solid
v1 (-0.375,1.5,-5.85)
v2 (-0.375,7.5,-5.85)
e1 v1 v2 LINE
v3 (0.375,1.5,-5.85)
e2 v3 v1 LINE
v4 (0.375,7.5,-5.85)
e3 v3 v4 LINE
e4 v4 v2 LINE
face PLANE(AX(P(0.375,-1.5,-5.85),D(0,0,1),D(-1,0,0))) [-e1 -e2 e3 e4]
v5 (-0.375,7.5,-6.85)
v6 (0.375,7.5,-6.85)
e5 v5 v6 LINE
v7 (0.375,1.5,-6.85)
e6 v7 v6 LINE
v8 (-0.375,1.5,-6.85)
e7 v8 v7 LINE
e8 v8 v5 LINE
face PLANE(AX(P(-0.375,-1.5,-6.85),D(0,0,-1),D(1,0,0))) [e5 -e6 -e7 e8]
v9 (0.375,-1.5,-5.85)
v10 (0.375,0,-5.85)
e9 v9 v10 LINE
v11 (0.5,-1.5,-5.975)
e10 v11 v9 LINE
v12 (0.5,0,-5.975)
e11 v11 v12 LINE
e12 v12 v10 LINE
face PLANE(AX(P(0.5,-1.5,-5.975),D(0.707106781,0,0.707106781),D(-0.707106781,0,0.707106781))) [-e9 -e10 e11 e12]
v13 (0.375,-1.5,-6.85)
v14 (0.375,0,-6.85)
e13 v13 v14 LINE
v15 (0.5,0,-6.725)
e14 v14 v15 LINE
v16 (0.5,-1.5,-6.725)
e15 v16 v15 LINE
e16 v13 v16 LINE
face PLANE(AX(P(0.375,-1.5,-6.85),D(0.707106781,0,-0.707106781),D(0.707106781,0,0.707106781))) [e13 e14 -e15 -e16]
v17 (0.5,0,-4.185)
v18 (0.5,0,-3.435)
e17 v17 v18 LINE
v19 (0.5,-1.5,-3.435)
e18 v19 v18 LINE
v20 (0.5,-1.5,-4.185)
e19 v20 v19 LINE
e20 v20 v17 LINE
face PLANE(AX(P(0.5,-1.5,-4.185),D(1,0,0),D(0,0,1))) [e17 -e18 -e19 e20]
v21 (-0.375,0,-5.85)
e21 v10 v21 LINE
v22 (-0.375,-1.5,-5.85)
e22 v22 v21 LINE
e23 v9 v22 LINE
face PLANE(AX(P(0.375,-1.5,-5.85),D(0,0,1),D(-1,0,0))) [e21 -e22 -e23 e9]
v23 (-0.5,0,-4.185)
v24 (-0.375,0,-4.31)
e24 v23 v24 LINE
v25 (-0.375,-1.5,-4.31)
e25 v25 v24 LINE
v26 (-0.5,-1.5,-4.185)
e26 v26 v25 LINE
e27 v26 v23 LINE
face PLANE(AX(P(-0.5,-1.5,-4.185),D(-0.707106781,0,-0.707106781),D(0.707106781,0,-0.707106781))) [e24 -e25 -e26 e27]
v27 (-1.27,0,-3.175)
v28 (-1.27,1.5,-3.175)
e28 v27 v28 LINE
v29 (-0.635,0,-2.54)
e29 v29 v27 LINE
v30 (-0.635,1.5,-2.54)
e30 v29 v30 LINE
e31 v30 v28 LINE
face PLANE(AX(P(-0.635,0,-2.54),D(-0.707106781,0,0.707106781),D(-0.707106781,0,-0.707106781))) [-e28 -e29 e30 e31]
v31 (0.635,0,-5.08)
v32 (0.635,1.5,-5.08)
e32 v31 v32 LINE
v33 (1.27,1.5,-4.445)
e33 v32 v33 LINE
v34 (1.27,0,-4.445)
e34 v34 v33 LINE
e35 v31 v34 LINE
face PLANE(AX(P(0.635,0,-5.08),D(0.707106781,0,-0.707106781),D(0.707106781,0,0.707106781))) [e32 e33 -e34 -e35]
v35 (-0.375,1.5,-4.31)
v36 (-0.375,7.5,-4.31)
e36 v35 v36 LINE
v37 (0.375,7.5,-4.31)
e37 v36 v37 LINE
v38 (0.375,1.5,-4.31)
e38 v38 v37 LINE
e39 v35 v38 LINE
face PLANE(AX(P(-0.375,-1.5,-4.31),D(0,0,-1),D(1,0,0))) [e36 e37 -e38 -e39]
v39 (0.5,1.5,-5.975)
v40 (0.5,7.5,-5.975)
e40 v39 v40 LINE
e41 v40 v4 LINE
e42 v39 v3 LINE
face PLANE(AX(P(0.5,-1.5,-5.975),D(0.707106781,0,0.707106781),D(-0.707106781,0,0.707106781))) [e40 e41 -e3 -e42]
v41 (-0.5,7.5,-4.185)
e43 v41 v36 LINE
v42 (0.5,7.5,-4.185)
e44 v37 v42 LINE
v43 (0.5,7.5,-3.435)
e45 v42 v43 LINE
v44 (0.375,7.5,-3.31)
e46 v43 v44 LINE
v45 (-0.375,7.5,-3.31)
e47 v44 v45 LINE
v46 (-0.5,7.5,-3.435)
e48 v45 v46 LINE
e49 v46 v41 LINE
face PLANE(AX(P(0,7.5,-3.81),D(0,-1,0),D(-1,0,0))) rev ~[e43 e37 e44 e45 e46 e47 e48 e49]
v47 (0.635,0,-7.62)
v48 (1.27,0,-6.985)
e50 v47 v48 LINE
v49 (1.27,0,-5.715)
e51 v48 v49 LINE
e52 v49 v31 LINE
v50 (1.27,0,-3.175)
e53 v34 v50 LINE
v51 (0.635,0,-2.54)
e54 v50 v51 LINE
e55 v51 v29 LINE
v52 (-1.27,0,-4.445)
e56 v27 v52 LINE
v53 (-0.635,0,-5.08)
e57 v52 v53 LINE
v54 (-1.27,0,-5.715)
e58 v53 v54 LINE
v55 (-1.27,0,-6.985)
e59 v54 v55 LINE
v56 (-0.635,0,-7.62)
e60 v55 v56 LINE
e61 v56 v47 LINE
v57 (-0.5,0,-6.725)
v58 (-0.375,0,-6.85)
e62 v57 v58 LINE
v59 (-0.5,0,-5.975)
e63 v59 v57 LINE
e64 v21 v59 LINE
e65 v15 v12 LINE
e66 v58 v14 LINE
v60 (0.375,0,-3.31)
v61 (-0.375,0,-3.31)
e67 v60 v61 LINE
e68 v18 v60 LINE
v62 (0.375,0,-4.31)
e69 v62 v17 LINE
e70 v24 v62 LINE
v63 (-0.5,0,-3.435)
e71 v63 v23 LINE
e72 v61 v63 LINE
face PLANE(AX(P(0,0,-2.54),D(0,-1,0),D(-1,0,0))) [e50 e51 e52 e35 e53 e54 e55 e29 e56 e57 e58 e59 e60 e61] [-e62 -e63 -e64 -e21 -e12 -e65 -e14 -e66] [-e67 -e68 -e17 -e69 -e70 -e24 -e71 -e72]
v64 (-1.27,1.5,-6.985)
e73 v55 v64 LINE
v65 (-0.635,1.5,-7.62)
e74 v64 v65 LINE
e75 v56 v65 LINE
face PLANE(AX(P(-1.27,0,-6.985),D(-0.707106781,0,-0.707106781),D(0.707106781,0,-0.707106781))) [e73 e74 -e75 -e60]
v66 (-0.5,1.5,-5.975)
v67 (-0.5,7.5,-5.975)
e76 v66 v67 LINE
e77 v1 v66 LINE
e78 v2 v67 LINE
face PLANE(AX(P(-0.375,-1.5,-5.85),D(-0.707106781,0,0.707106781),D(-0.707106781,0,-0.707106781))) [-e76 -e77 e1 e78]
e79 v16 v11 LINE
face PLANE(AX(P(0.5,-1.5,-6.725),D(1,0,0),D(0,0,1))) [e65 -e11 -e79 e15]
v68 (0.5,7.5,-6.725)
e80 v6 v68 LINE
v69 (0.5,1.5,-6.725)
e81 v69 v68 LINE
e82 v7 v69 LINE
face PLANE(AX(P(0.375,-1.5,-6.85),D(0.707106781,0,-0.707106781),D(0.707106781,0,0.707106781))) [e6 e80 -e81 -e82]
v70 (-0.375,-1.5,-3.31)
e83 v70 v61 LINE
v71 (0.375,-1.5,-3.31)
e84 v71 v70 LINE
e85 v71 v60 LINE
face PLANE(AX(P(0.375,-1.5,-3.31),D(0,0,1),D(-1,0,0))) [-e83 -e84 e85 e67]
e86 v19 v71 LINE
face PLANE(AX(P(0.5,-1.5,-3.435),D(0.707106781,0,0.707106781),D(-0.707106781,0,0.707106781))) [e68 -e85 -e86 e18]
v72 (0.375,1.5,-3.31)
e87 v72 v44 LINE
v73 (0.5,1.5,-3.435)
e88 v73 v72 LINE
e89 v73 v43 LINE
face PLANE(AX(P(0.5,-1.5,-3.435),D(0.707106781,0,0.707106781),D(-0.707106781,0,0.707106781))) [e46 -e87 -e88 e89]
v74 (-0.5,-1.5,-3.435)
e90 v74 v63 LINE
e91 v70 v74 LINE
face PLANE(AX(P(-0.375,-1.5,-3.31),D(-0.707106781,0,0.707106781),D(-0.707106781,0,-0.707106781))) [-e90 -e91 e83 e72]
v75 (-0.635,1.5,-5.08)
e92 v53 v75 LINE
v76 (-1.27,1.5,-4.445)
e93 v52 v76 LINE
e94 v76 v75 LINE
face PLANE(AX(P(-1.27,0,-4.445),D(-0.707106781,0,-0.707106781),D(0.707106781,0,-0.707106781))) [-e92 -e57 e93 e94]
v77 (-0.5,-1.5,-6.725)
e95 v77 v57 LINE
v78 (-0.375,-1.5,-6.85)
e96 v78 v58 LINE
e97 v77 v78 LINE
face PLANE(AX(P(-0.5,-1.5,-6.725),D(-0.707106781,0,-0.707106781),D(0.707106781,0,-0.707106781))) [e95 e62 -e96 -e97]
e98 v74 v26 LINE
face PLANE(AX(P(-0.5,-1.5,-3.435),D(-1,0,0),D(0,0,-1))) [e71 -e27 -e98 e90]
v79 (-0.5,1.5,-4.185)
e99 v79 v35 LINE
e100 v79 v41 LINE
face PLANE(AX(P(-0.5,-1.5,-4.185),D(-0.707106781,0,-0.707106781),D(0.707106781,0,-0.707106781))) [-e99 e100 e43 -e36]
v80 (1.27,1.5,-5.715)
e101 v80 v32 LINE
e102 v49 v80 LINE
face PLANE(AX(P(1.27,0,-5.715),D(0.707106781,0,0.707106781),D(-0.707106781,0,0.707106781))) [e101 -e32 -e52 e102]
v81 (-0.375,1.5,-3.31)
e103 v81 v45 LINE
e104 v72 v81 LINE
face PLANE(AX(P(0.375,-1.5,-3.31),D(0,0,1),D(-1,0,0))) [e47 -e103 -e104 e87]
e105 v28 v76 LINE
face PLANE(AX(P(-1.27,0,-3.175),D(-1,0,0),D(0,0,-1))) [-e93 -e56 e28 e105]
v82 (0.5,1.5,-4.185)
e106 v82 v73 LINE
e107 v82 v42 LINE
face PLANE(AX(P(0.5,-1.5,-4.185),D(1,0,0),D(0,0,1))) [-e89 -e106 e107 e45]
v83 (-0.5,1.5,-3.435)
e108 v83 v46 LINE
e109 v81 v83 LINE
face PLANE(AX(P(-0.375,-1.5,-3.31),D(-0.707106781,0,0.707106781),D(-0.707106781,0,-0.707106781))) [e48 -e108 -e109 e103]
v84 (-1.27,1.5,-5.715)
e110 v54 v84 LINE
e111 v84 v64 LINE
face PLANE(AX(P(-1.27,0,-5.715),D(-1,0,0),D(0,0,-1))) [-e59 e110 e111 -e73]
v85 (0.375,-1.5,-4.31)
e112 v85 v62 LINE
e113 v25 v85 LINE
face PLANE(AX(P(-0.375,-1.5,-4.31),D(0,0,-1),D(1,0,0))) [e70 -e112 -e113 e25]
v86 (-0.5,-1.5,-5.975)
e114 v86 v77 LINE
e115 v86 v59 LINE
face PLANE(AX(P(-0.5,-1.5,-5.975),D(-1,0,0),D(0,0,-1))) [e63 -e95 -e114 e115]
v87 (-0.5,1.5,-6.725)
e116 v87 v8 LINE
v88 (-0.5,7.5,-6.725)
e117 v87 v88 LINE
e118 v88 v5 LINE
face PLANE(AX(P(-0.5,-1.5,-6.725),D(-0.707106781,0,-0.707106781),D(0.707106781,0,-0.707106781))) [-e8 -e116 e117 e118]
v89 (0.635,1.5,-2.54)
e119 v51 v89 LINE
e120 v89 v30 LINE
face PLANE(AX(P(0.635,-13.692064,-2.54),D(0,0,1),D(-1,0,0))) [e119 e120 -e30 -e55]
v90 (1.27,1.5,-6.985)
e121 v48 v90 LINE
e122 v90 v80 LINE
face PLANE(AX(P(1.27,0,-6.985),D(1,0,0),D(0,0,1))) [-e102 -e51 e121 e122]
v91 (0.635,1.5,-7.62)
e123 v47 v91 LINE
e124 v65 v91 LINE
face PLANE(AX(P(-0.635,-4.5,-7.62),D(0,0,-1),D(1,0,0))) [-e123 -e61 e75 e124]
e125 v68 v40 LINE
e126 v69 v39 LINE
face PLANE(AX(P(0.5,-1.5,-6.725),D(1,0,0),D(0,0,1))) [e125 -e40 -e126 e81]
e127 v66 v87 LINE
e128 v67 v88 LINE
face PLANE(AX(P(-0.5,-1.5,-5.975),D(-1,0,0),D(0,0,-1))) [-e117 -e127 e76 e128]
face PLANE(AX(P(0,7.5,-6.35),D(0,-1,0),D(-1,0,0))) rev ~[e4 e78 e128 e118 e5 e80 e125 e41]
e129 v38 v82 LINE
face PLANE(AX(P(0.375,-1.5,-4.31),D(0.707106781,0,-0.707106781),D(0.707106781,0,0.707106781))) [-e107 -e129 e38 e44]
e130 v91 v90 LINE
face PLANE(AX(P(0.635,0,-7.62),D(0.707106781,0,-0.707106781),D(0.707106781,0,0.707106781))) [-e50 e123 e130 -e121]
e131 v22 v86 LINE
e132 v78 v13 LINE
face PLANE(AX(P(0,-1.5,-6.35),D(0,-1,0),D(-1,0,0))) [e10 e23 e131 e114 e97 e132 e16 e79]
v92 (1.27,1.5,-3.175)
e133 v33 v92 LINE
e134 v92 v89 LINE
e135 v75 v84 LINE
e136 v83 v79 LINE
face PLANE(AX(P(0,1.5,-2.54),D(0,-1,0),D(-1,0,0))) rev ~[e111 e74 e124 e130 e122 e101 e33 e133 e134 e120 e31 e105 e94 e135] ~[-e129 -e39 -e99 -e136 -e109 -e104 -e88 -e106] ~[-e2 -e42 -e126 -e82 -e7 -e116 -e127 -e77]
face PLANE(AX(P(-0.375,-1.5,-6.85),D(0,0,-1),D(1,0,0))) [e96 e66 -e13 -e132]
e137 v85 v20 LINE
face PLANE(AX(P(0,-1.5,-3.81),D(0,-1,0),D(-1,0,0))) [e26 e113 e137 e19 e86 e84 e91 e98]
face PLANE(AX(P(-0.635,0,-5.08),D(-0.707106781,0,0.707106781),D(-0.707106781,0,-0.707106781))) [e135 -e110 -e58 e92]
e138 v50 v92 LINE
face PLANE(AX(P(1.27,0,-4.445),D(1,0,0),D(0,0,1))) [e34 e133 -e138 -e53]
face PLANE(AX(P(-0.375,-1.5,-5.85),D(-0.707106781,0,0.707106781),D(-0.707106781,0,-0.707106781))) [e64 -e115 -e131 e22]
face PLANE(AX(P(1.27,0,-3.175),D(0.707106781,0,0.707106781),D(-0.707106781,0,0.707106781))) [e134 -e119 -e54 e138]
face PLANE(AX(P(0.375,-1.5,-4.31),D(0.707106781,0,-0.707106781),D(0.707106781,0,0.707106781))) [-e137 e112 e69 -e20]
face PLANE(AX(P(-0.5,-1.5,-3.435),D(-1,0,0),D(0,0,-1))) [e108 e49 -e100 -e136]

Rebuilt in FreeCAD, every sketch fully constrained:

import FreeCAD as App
import Part
import Sketcher
from FreeCAD import Vector
Q = App.Units.Quantity


def add_polygon(sketch, points):
    """Adds a closed chain of lines whose ends are joined by coincident constraints."""
    first, n = sketch.GeometryCount, len(points)
    for a, b in zip(points, points[1:] + points[:1]):
        sketch.addGeometry(Part.LineSegment(App.Vector(*a, 0), App.Vector(*b, 0)), False)
    for i in range(n):
        sketch.addConstraint(Sketcher.Constraint("Coincident", first + i, 2, first + (i + 1) % n, 1))

doc = App.newDocument("Part")
body = doc.addObject("PartDesign::Body", "Body")

sketch1 = doc.addObject("Sketcher::SketchObject", "Sketch")
body.addObject(sketch1)
sketch1.AttachmentSupport = (doc.XZ_Plane, [""])
sketch1.MapMode = "FlatFace"
add_polygon(sketch1, [(0.6, -10.2), (-0.6, -10.2), (-1.3, -9.5), (-1.3, -8.3), (-0.6, -7.6), (-1.3, -7), (-1.3, -5.7), (-0.6, -5.1), (-1.3, -4.4), (-1.3, -3.2), (-0.6, -2.5), (-1.3, -1.9), (-1.3, -0.6), (-0.6, 0), (-1.3, 0.6), (-1.3, 1.9), (-0.6, 2.5), (-1.3, 3.2), (-1.3, 4.4), (-0.6, 5.1), (0.6, 5.1), (1.3, 4.4), (1.3, 3.2), (0.6, 2.5), (1.3, 1.9), (1.3, 0.6), (0.6, 0), (1.3, -0.6), (1.3, -1.9), (0.6, -2.5), (1.3, -3.2), (1.3, -4.4), (0.6, -5.1), (1.3, -5.7), (1.3, -7), (0.6, -7.6), (1.3, -8.3), (1.3, -9.5)])
sketch1.addConstraint([
    Sketcher.Constraint("Horizontal", 0),
    Sketcher.Constraint("Vertical", 2),
    Sketcher.Constraint("Vertical", 5),
    Sketcher.Constraint("Vertical", 8),
    Sketcher.Constraint("Vertical", 11),
    Sketcher.Constraint("Vertical", 14),
    Sketcher.Constraint("Vertical", 17),
    Sketcher.Constraint("Horizontal", 19),
    Sketcher.Constraint("Vertical", 21),
    Sketcher.Constraint("Vertical", 24),
    Sketcher.Constraint("Vertical", 27),
    Sketcher.Constraint("Vertical", 30),
    Sketcher.Constraint("Vertical", 33),
    Sketcher.Constraint("Vertical", 36),
    Sketcher.Constraint("Symmetric", 6, 2, 19, 2, -1, 1),
    Sketcher.Constraint("Symmetric", 7, 2, 20, 2, -1, 1),
    Sketcher.Constraint("Symmetric", 9, 2, 22, 2, -1, 1),
    Sketcher.Constraint("Symmetric", 10, 2, 23, 2, -1, 1),
    Sketcher.Constraint("Symmetric", 12, 2, 25, 2, -1, 1),
    Sketcher.Constraint("Symmetric", 13, 2, 26, 2, -1, 1),
    Sketcher.Constraint("Symmetric", 15, 2, 28, 2, -1, 1),
    Sketcher.Constraint("Symmetric", 16, 2, 29, 2, -1, 1),
    Sketcher.Constraint("Symmetric", 18, 2, 31, 2, -1, 1),
    Sketcher.Constraint("Symmetric", 17, 2, 20, 2, -2),
    Sketcher.Constraint("Symmetric", 15, 2, 22, 2, -2),
    Sketcher.Constraint("Symmetric", 14, 2, 23, 2, -2),
    Sketcher.Constraint("Symmetric", 5, 2, 32, 2, -2),
    Sketcher.Constraint("Symmetric", 3, 2, 34, 2, -2),
    Sketcher.Constraint("Symmetric", 2, 2, 35, 2, -2),
    Sketcher.Constraint("PointOnObject", 12, 2, -1),
    Sketcher.Constraint("Perpendicular", 1, 3),
    Sketcher.Constraint("Perpendicular", 3, 4),
    Sketcher.Constraint("Perpendicular", 4, 6),
    Sketcher.Constraint("Perpendicular", 6, 7),
    Sketcher.Constraint("Perpendicular", 7, 9),
    Sketcher.Constraint("Perpendicular", 9, 10),
    Sketcher.Constraint("Perpendicular", 10, 12),
    Sketcher.Constraint("Perpendicular", 12, 13),
    Sketcher.Constraint("Perpendicular", 13, 15),
    Sketcher.Constraint("Perpendicular", 15, 16),
    Sketcher.Constraint("Perpendicular", 16, 18),
    Sketcher.Constraint("Perpendicular", 20, 22),
    Sketcher.Constraint("Perpendicular", 23, 25),
    Sketcher.Constraint("Perpendicular", 26, 28),
    Sketcher.Constraint("Perpendicular", 29, 31),
    Sketcher.Constraint("Perpendicular", 32, 34),
    Sketcher.Constraint("Perpendicular", 35, 37),
    Sketcher.Constraint("Horizontal", 1, 2, 36, 2),
    Sketcher.Constraint("Vertical", 0, 2, 3, 2),
    Sketcher.Constraint("Vertical", 2, 2, 4, 2),
    Sketcher.Constraint("Vertical", 3, 2, 6, 2),
    Sketcher.Constraint("Vertical", 5, 2, 7, 2),
    Sketcher.Constraint("Vertical", 6, 2, 9, 2),
    Sketcher.Constraint("Vertical", 8, 2, 10, 2),
    Sketcher.Constraint("Vertical", 9, 2, 12, 2),
    Sketcher.Constraint("Equal", 19, 2),
    Sketcher.Constraint("Equal", 2, 5),
    Sketcher.Constraint("Equal", 5, 8),
    Sketcher.Constraint("Equal", 8, 11),
    Sketcher.Constraint("DistanceX", 0, 2, 0, 1, Q("1.27 mm")),
    Sketcher.Constraint("DistanceY", 0, 2, -1, 1, Q("10.16 mm")),
])
pad1 = doc.addObject("PartDesign::Pad", "Pad")
body.addObject(pad1)
pad1.Profile = sketch1
pad1.Length = 1.5
pad1.Reversed = True

sketch2 = doc.addObject("Sketcher::SketchObject", "Sketch001")
body.addObject(sketch2)
sketch2.AttachmentSupport = (doc.XZ_Plane, [""])
sketch2.MapMode = "FlatFace"
sketch2.AttachmentOffset = App.Placement(Vector(0, 0, -1.5), App.Rotation())
add_polygon(sketch2, [(0.5, -9.27), (0.38, -9.39), (-0.38, -9.39), (-0.5, -9.27), (-0.5, -8.52), (-0.38, -8.39), (0.38, -8.39), (0.5, -8.52)])
add_polygon(sketch2, [(0.5, -6.72), (0.38, -6.85), (-0.38, -6.85), (-0.5, -6.72), (-0.5, -5.97), (-0.38, -5.85), (0.38, -5.85), (0.5, -5.97)])
add_polygon(sketch2, [(0.5, -4.18), (0.38, -4.31), (-0.38, -4.31), (-0.5, -4.18), (-0.5, -3.44), (-0.38, -3.31), (0.38, -3.31), (0.5, -3.44)])
add_polygon(sketch2, [(0.5, -1.65), (0.38, -1.77), (-0.38, -1.77), (-0.5, -1.65), (-0.5, -0.9), (-0.38, -0.77), (0.38, -0.77), (0.5, -0.9)])
add_polygon(sketch2, [(0.5, 0.9), (0.38, 0.77), (-0.38, 0.77), (-0.5, 0.9), (-0.5, 1.65), (-0.38, 1.77), (0.38, 1.77), (0.5, 1.65)])
add_polygon(sketch2, [(0.5, 3.44), (0.38, 3.31), (-0.38, 3.31), (-0.5, 3.44), (-0.5, 4.18), (-0.38, 4.31), (0.38, 4.31), (0.5, 4.18)])
sketch2.addConstraint([
    Sketcher.Constraint("Horizontal", 1),
    Sketcher.Constraint("Vertical", 3),
    Sketcher.Constraint("Horizontal", 5),
    Sketcher.Constraint("Vertical", 7),
    Sketcher.Constraint("Horizontal", 9),
    Sketcher.Constraint("Vertical", 11),
    Sketcher.Constraint("Horizontal", 13),
    Sketcher.Constraint("Vertical", 15),
    Sketcher.Constraint("Horizontal", 17),
    Sketcher.Constraint("Vertical", 19),
    Sketcher.Constraint("Horizontal", 21),
    Sketcher.Constraint("Vertical", 23),
    Sketcher.Constraint("Horizontal", 25),
    Sketcher.Constraint("Vertical", 27),
    Sketcher.Constraint("Horizontal", 29),
    Sketcher.Constraint("Vertical", 31),
    Sketcher.Constraint("Horizontal", 33),
    Sketcher.Constraint("Vertical", 35),
    Sketcher.Constraint("Horizontal", 37),
    Sketcher.Constraint("Vertical", 39),
    Sketcher.Constraint("Horizontal", 41),
    Sketcher.Constraint("Vertical", 43),
    Sketcher.Constraint("Horizontal", 45),
    Sketcher.Constraint("Vertical", 47),
    Sketcher.Constraint("Symmetric", 28, 2, 32, 2, -1, 1),
    Sketcher.Constraint("Symmetric", 30, 2, 34, 2, -1, 1),
    Sketcher.Constraint("Symmetric", 24, 2, 36, 2, -1, 1),
    Sketcher.Constraint("Symmetric", 26, 2, 38, 2, -1, 1),
    Sketcher.Constraint("Symmetric", 20, 2, 40, 2, -1, 1),
    Sketcher.Constraint("Symmetric", 22, 2, 42, 2, -1, 1),
    Sketcher.Constraint("Symmetric", 16, 2, 44, 2, -1, 1),
    Sketcher.Constraint("Symmetric", 18, 2, 46, 2, -1, 1),
    Sketcher.Constraint("Symmetric", 3, 2, 6, 2, -2),
    Sketcher.Constraint("Symmetric", 11, 2, 14, 2, -2),
    Sketcher.Constraint("Symmetric", 19, 2, 22, 2, -2),
    Sketcher.Constraint("Symmetric", 27, 2, 30, 2, -2),
    Sketcher.Constraint("Perpendicular", 0, 2),
    Sketcher.Constraint("Perpendicular", 2, 4),
    Sketcher.Constraint("Perpendicular", 4, 6),
    Sketcher.Constraint("Perpendicular", 6, 8),
    Sketcher.Constraint("Perpendicular", 8, 10),
    Sketcher.Constraint("Perpendicular", 10, 12),
    Sketcher.Constraint("Perpendicular", 12, 14),
    Sketcher.Constraint("Perpendicular", 14, 16),
    Sketcher.Constraint("Perpendicular", 16, 18),
    Sketcher.Constraint("Perpendicular", 18, 20),
    Sketcher.Constraint("Perpendicular", 20, 22),
    Sketcher.Constraint("Perpendicular", 22, 24),
    Sketcher.Constraint("Perpendicular", 24, 26),
    Sketcher.Constraint("Perpendicular", 26, 28),
    Sketcher.Constraint("Perpendicular", 28, 30),
    Sketcher.Constraint("Perpendicular", 30, 32),
    Sketcher.Constraint("Perpendicular", 32, 34),
    Sketcher.Constraint("Perpendicular", 34, 36),
    Sketcher.Constraint("Perpendicular", 36, 38),
    Sketcher.Constraint("Perpendicular", 38, 40),
    Sketcher.Constraint("Perpendicular", 40, 42),
    Sketcher.Constraint("Perpendicular", 42, 44),
    Sketcher.Constraint("Perpendicular", 44, 46),
    Sketcher.Constraint("Horizontal", 2, 2, 7, 2),
    Sketcher.Constraint("Horizontal", 10, 2, 15, 2),
    Sketcher.Constraint("Horizontal", 18, 2, 23, 2),
    Sketcher.Constraint("Horizontal", 26, 2, 31, 2),
    Sketcher.Constraint("Vertical", 1, 2, 4, 2),
    Sketcher.Constraint("Vertical", 0, 2, 5, 2),
    Sketcher.Constraint("Vertical", 5, 2, 8, 2),
    Sketcher.Constraint("Vertical", 3, 2, 10, 2),
    Sketcher.Constraint("Vertical", 9, 2, 12, 2),
    Sketcher.Constraint("Vertical", 13, 2, 16, 2),
    Sketcher.Constraint("Vertical", 11, 2, 18, 2),
    Sketcher.Constraint("Vertical", 17, 2, 20, 2),
    Sketcher.Constraint("Vertical", 21, 2, 24, 2),
    Sketcher.Constraint("Vertical", 19, 2, 26, 2),
    Sketcher.Constraint("Vertical", 25, 2, 28, 2),
    Sketcher.Constraint("Equal", 45, 3),
    Sketcher.Constraint("Equal", 7, 11),
    Sketcher.Constraint("Equal", 15, 19),
    Sketcher.Constraint("Equal", 23, 27),
    Sketcher.Constraint("DistanceY", 1, 2, 4, 2, Q("1 mm")),
    Sketcher.Constraint("DistanceX", 1, 2, 1, 1, Q("0.75 mm")),
    Sketcher.Constraint("DistanceY", 0, 2, -1, 1, Q("9.39 mm")),
    Sketcher.Constraint("DistanceY", 8, 2, -1, 1, Q("6.85 mm")),
    Sketcher.Constraint("DistanceY", 16, 2, -1, 1, Q("4.31 mm")),
    Sketcher.Constraint("DistanceY", 24, 2, -1, 1, Q("1.77 mm")),
])
pad2 = doc.addObject("PartDesign::Pad", "Pad001")
body.addObject(pad2)
pad2.Profile = sketch2
pad2.Type = "TwoLengths"
pad2.Length = 6
pad2.Length2 = 3
pad2.Reversed = True

sketch3 = doc.addObject("Sketcher::SketchObject", "Sketch002")
body.addObject(sketch3)
sketch3.AttachmentSupport = (doc.XZ_Plane, [""])
sketch3.MapMode = "FlatFace"
add_polygon(sketch3, [(0.6, -2.5), (-0.6, -2.5), (-3.6, -2.1), (-3.6, 5.5), (3.5, 6.3), (3.5, -1.3)])
sketch3.addConstraint([
    Sketcher.Constraint("Horizontal", 0),
    Sketcher.Constraint("Vertical", 2),
    Sketcher.Constraint("Vertical", 4),
    Sketcher.Constraint("DistanceX", 0, 2, 0, 1, Q("1.27 mm")),
    Sketcher.Constraint("DistanceY", 0, 2, -1, 1, Q("2.54 mm")),
    Sketcher.Constraint("DistanceX", 0, 2, -1, 1, Q("0.635 mm")),
    Sketcher.Constraint("DistanceY", 2, 1, 2, 2, Q("7.694427 mm")),
    Sketcher.Constraint("DistanceY", 4, 2, 4, 1, Q("7.628662 mm")),
    Sketcher.Constraint("DistanceX", -1, 1, 3, 2, Q("3.518392 mm")),
    Sketcher.Constraint("DistanceY", 4, 2, -1, 1, Q("1.32336 mm")),
    Sketcher.Constraint("DistanceY", 2, 2, 3, 2, Q("0.75629 mm")),
    Sketcher.Constraint("Distance", 1, Q("2.942847 mm")),
])
pocket1 = doc.addObject("PartDesign::Pocket", "Pocket")
body.addObject(pocket1)
pocket1.Profile = sketch3
pocket1.Type = "ThroughAll"
pocket1.Midplane = True

sketch4 = doc.addObject("Sketcher::SketchObject", "Sketch003")
body.addObject(sketch4)
sketch4.AttachmentSupport = (doc.XZ_Plane, [""])
sketch4.MapMode = "FlatFace"
sketch4.AttachmentOffset = App.Placement(Vector(0, 0, -1.5), App.Rotation())
add_polygon(sketch4, [(-0.6, -7.6), (0.6, -7.6), (3.3, -8.5), (2, -11.1), (-2.6, -11.1), (-2.6, -7.9)])
sketch4.addConstraint([
    Sketcher.Constraint("Horizontal", 0),
    Sketcher.Constraint("Horizontal", 3),
    Sketcher.Constraint("Vertical", 4),
    Sketcher.Constraint("DistanceX", 0, 1, 0, 2, Q("1.27 mm")),
    Sketcher.Constraint("DistanceY", 0, 2, -1, 1, Q("7.62 mm")),
    Sketcher.Constraint("DistanceX", -1, 1, 0, 2, Q("0.635 mm")),
    Sketcher.Constraint("DistanceX", 3, 2, 3, 1, Q("4.53501 mm")),
    Sketcher.Constraint("Distance", 1, Q("2.822648 mm")),
    Sketcher.Constraint("Distance", 2, Q("2.918822 mm")),
    Sketcher.Constraint("DistanceY", 4, 1, 4, 2, Q("3.236655 mm")),
    Sketcher.Constraint("DistanceX", -1, 1, 2, 2, Q("1.969829 mm")),
    Sketcher.Constraint("DistanceX", 2, 2, 1, 2, Q("1.334829 mm")),
])
pocket2 = doc.addObject("PartDesign::Pocket", "Pocket001")
body.addObject(pocket2)
pocket2.Profile = sketch4
pocket2.Type = "ThroughAll"
pocket2.Midplane = True

doc.recompute()
